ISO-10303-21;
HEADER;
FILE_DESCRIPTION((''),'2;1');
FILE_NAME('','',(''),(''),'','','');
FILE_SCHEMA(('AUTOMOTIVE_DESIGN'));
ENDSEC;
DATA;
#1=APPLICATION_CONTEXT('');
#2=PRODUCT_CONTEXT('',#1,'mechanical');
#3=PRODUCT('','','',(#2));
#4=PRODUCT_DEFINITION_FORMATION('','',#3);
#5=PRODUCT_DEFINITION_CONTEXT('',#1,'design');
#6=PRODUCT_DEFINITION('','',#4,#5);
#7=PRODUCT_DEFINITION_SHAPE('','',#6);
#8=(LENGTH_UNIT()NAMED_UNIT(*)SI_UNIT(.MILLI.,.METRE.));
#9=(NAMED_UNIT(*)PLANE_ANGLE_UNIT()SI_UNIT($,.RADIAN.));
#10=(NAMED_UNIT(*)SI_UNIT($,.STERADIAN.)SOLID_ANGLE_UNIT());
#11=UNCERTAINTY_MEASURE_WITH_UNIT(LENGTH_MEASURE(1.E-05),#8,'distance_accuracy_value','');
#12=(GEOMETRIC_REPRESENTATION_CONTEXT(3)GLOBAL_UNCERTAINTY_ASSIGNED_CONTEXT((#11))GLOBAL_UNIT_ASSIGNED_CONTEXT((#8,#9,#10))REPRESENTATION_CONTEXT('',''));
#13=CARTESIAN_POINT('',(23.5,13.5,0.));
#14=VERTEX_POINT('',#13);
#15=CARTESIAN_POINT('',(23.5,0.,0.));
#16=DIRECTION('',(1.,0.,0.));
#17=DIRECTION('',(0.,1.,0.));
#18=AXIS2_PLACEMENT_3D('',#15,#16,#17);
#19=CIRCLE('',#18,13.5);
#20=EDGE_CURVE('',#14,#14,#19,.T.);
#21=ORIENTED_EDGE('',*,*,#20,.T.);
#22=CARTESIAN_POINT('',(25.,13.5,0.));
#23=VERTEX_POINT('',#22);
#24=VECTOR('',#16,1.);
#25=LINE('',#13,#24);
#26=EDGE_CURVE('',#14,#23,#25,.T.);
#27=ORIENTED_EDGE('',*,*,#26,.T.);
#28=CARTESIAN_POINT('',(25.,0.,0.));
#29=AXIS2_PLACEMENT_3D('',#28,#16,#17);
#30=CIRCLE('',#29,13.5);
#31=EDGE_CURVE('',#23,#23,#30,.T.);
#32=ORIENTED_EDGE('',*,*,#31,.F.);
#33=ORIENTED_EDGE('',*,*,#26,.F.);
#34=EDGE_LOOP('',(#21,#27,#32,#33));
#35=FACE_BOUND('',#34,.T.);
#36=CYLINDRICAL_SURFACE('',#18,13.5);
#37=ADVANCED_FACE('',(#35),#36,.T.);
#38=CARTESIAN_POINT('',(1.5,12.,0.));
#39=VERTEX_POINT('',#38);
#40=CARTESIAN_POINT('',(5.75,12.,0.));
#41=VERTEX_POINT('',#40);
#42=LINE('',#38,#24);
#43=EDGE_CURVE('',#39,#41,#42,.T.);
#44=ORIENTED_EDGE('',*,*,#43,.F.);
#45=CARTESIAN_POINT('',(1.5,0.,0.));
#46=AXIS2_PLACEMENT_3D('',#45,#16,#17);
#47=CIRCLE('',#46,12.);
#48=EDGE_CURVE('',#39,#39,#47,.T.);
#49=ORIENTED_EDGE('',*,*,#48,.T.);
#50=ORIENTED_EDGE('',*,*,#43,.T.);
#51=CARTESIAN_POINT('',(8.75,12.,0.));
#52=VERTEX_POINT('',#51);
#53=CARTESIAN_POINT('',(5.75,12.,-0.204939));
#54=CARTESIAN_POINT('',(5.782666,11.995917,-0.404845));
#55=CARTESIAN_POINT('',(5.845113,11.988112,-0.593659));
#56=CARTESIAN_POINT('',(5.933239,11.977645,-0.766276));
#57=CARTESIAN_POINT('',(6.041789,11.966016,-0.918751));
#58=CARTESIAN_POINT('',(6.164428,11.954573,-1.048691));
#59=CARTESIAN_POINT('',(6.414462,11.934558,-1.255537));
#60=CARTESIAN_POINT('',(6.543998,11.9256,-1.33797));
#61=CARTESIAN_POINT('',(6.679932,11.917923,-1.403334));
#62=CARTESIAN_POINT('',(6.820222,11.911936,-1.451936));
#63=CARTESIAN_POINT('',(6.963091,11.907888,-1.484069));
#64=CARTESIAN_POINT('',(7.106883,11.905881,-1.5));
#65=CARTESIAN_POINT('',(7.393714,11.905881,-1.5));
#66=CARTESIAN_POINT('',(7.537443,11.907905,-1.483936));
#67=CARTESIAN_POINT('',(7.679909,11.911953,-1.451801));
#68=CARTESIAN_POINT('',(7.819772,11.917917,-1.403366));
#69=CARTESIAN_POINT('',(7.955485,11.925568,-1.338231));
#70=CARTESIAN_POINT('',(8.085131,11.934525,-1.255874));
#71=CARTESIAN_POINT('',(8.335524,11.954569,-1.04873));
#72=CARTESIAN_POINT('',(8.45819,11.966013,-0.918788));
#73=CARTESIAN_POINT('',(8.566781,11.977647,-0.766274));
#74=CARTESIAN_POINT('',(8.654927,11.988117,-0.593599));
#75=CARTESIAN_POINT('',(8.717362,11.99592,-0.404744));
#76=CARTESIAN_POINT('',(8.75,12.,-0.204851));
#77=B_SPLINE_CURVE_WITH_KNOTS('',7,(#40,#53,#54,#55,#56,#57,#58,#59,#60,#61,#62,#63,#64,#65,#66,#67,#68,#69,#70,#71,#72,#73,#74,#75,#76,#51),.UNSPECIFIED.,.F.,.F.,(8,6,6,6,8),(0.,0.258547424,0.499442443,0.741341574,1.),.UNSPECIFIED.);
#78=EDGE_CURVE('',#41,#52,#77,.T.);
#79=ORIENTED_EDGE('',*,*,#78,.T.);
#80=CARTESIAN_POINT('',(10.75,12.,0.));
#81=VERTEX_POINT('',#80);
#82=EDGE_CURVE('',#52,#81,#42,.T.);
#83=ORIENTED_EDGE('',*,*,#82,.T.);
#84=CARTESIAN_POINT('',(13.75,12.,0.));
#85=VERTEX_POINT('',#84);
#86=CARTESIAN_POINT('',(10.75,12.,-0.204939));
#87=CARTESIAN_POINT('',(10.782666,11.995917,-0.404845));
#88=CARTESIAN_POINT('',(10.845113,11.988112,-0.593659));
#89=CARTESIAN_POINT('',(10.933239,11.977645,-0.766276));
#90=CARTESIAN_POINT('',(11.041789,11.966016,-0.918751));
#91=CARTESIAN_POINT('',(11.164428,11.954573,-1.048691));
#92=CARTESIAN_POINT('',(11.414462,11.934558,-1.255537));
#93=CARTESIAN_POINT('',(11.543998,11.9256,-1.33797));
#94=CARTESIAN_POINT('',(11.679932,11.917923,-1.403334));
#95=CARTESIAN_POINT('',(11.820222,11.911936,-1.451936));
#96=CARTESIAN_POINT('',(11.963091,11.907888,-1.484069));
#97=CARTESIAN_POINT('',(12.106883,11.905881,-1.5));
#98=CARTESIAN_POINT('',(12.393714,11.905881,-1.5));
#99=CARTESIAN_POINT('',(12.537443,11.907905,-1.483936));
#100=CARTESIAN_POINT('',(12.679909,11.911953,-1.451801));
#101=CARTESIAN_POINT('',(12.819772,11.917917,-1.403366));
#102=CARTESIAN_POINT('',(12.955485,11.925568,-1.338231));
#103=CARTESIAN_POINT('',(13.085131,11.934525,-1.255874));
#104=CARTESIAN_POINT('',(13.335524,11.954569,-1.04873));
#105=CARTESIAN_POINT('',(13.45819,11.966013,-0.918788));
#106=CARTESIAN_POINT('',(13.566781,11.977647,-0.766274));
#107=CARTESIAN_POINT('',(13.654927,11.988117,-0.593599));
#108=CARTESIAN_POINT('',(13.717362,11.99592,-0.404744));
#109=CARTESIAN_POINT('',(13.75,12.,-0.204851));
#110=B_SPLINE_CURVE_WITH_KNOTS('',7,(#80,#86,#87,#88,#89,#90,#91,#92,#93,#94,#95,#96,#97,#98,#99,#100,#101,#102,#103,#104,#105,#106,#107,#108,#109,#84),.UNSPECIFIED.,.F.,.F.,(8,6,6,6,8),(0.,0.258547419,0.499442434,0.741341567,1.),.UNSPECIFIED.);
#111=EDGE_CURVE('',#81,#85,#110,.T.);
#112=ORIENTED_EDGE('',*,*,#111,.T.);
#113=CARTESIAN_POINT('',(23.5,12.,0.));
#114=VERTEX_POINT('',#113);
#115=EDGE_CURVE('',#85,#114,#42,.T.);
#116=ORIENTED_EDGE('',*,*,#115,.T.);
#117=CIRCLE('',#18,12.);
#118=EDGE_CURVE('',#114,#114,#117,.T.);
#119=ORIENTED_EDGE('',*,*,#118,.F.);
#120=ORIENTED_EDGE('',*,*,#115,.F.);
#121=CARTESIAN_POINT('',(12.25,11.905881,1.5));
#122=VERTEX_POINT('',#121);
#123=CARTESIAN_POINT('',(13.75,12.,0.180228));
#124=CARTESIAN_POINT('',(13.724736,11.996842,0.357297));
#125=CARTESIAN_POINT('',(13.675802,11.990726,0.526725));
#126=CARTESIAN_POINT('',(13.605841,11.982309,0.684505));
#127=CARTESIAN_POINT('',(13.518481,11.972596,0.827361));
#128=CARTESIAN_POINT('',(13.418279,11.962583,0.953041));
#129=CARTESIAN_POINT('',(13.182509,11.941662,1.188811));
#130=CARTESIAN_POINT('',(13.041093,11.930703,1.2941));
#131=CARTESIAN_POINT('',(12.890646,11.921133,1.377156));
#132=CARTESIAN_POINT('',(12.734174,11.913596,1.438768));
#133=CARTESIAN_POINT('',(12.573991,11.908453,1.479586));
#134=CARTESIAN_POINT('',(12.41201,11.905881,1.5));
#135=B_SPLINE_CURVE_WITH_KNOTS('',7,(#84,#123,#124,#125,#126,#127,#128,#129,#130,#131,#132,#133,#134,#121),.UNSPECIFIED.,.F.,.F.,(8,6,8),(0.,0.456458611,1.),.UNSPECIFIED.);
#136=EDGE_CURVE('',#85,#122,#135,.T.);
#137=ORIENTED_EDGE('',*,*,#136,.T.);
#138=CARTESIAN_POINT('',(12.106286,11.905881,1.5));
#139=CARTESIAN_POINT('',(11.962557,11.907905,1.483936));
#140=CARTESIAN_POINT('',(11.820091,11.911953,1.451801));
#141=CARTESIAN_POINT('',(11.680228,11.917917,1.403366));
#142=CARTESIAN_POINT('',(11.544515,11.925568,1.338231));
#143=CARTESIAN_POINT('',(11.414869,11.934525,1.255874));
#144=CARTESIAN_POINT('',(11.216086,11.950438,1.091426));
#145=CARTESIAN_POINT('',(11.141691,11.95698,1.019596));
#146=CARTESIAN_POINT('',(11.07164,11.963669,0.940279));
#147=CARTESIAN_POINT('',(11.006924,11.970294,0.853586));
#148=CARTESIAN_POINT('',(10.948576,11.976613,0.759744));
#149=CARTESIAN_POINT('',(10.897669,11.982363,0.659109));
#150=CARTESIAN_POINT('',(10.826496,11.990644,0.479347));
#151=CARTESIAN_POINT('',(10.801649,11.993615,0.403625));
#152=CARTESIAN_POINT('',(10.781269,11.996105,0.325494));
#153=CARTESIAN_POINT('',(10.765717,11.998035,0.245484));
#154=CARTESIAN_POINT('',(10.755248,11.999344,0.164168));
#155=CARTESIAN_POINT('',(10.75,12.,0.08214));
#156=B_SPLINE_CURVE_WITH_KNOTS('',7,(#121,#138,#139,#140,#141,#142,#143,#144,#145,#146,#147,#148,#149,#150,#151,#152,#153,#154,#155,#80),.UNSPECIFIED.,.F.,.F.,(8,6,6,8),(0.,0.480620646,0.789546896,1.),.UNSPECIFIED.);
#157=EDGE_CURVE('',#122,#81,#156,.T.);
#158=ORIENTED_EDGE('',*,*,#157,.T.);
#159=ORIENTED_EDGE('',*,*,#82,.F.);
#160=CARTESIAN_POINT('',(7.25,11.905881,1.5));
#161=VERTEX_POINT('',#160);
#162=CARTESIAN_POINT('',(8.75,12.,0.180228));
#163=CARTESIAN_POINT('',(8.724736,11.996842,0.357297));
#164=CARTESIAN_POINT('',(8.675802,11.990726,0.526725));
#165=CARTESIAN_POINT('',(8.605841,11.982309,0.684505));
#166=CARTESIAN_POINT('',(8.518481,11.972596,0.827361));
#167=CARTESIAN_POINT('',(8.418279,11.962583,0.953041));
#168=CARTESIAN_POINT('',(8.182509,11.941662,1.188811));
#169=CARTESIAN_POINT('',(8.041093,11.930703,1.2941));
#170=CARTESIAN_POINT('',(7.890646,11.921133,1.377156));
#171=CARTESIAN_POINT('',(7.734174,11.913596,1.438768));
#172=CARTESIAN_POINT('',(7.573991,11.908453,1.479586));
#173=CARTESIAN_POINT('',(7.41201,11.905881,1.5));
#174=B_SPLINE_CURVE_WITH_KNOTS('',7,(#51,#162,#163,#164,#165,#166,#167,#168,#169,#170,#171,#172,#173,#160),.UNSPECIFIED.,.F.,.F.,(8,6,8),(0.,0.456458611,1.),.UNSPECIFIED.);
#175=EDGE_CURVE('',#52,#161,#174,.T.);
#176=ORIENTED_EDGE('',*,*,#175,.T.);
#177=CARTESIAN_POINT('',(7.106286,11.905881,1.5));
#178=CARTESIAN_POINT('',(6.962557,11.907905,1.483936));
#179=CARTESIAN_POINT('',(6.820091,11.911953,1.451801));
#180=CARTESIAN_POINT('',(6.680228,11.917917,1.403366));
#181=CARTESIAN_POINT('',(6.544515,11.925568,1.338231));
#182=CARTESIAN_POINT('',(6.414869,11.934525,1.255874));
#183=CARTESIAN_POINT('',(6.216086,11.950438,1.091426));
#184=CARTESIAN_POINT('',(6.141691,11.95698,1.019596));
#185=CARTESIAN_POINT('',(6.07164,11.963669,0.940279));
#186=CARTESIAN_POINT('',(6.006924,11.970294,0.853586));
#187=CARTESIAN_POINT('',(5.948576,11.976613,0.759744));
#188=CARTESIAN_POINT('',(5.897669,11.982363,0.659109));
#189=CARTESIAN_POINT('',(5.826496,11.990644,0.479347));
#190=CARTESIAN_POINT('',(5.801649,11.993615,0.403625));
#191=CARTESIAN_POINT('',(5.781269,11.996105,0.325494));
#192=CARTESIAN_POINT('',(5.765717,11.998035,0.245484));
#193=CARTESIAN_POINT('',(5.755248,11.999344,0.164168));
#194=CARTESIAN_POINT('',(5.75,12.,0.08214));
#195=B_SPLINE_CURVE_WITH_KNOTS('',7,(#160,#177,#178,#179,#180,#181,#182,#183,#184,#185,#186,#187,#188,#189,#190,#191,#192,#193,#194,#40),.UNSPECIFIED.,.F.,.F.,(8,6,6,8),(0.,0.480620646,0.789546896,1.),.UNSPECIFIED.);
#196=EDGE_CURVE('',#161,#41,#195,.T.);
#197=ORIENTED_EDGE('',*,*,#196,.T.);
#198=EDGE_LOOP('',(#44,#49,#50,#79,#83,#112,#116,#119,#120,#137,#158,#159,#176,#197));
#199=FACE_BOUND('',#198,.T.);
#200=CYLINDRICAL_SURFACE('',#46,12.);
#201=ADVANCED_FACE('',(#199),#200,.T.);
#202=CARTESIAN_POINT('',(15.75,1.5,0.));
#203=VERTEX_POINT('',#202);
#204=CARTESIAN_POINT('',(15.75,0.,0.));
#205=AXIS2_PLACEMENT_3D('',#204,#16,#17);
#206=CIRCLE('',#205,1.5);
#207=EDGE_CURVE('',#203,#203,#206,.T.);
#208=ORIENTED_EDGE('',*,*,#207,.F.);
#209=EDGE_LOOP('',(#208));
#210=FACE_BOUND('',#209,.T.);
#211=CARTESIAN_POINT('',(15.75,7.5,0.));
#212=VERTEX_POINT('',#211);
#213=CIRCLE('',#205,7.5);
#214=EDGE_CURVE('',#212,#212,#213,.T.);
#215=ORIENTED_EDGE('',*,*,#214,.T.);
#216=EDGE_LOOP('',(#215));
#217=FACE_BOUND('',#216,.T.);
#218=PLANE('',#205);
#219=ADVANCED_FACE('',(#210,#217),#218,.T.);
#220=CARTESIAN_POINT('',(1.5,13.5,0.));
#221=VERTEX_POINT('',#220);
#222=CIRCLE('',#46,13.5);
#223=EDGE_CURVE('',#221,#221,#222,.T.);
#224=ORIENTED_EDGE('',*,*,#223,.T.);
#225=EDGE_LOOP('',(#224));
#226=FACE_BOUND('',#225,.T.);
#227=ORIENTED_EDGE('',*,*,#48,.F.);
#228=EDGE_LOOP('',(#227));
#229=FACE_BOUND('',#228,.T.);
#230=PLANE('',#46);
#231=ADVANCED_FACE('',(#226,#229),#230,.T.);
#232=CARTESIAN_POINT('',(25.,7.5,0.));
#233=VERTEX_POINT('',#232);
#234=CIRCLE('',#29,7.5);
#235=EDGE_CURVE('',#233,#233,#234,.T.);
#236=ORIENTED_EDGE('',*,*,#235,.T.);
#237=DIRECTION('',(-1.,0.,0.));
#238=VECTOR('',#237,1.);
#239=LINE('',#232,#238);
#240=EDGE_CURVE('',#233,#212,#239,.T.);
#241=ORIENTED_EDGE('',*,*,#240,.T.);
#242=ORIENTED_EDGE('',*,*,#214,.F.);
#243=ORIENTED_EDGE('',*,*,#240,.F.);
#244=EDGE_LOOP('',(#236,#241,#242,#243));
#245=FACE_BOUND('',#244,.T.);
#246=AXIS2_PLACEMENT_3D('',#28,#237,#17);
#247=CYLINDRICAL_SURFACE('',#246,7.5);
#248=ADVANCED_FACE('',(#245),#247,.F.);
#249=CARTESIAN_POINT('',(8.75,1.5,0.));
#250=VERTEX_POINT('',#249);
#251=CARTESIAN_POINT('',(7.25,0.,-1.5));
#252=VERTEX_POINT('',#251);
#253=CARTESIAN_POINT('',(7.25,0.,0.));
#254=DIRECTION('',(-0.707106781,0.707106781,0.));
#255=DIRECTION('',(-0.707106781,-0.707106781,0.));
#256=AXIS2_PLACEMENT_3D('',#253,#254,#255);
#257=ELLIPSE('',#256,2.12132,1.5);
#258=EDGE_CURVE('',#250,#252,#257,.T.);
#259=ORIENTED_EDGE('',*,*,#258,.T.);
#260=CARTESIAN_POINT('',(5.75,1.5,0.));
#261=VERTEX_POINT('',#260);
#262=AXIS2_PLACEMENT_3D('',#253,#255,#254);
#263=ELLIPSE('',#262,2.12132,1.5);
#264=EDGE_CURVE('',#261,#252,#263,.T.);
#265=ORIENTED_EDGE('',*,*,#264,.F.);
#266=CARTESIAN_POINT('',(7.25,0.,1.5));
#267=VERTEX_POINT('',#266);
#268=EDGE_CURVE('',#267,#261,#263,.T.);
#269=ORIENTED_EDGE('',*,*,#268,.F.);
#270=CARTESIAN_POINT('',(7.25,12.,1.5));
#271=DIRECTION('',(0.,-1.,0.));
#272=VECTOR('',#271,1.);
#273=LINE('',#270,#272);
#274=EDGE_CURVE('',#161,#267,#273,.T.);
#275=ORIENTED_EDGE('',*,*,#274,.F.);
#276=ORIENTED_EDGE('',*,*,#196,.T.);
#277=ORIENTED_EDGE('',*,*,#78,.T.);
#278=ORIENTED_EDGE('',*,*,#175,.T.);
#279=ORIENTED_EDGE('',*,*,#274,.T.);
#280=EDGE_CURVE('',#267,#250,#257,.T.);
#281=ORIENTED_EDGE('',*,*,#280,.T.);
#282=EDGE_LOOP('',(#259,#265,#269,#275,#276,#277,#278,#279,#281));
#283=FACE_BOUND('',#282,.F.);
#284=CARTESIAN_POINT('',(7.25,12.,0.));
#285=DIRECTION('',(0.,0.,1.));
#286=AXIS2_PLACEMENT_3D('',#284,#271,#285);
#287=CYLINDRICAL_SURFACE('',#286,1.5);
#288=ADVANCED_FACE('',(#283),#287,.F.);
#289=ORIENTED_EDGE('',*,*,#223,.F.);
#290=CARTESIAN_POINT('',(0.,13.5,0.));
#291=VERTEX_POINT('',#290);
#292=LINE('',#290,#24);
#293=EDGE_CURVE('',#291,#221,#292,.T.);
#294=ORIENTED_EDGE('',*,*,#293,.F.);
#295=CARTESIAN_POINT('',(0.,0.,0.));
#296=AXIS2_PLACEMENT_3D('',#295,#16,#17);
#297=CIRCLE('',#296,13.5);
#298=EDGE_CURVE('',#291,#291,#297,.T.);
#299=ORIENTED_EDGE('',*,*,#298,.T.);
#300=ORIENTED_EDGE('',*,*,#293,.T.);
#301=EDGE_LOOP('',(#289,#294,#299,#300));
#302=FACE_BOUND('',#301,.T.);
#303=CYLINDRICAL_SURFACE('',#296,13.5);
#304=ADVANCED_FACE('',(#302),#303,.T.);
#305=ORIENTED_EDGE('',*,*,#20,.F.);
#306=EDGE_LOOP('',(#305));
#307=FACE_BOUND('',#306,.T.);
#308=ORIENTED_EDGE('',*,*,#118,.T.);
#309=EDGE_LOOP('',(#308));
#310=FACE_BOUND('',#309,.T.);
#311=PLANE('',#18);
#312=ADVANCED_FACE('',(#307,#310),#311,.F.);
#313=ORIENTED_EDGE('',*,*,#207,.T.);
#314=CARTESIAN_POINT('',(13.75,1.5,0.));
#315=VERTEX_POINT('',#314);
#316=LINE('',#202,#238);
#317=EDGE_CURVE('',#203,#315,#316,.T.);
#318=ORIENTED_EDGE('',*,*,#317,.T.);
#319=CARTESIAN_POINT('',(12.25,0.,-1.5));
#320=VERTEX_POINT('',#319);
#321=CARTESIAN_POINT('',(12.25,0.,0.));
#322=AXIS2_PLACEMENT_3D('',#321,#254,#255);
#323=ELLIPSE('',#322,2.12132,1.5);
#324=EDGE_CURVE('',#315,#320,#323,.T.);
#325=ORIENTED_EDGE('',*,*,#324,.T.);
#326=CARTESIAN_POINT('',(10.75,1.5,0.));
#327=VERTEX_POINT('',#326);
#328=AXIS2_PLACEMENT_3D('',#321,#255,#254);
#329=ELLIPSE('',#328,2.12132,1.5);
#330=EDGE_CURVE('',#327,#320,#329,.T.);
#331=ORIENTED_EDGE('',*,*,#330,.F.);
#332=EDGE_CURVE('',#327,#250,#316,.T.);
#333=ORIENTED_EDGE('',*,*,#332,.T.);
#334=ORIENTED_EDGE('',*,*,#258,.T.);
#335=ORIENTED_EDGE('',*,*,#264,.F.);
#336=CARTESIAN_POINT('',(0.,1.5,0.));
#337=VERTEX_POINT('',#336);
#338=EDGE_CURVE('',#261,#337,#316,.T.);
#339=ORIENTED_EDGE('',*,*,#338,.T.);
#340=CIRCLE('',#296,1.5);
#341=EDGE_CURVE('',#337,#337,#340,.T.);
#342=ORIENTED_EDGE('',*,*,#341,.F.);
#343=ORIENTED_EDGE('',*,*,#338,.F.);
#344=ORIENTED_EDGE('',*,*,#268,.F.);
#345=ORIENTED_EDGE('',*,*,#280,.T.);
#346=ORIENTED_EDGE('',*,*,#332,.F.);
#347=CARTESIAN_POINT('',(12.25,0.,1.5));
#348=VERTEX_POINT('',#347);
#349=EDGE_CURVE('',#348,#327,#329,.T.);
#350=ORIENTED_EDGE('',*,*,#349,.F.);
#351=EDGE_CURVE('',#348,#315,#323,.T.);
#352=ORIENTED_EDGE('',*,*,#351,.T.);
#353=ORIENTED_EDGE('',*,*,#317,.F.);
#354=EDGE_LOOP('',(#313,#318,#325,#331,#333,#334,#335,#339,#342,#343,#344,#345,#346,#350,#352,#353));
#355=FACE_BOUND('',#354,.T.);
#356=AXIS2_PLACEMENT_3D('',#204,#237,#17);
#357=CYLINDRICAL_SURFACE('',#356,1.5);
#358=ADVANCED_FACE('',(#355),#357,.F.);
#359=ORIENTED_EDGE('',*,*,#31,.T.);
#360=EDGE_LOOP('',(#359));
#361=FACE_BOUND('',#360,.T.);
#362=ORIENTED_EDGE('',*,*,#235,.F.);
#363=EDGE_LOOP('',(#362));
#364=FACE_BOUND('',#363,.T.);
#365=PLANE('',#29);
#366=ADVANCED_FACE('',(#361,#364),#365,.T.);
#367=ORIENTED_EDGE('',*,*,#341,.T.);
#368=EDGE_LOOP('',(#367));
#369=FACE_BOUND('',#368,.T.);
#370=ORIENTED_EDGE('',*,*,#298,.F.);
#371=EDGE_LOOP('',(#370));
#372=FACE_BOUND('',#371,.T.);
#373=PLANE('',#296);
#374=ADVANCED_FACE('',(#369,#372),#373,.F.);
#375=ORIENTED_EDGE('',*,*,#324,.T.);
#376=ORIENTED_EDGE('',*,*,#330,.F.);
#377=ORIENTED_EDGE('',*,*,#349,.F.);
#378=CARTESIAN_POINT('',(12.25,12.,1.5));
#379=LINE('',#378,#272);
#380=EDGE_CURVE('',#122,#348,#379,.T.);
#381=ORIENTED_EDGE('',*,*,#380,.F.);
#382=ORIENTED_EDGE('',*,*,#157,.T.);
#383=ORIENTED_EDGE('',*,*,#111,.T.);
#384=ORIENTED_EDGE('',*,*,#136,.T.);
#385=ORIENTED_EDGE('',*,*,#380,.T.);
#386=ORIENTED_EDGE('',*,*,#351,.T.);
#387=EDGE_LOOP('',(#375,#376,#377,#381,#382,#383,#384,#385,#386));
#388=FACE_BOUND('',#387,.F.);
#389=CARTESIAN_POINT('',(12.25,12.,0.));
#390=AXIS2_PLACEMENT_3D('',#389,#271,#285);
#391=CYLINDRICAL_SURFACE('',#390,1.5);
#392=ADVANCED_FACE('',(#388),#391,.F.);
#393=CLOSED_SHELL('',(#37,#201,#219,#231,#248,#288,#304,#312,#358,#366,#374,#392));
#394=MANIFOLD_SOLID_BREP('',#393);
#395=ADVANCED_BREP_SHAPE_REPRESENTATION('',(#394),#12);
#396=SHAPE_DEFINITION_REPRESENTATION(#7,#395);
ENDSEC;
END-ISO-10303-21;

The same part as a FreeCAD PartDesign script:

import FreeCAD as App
import Part
import Sketcher
from FreeCAD import Vector


def add_polygon(sketch, points):
    """Adds a closed chain of lines whose ends are joined by coincident constraints."""
    first, n = sketch.GeometryCount, len(points)
    for a, b in zip(points, points[1:] + points[:1]):
        sketch.addGeometry(Part.LineSegment(App.Vector(*a, 0), App.Vector(*b, 0)), False)
    for i in range(n):
        sketch.addConstraint(Sketcher.Constraint("Coincident", first + i, 2, first + (i + 1) % n, 1))

doc = App.newDocument("Part")
params = doc.addObject("Spreadsheet::Sheet", "Params")
for row, (alias, value) in enumerate([
    ("sketch1_width", "1.5 mm"),
    ("sketch1_width2", "9.25 mm"),
    ("sketch1_height", "12 mm"),
    ("revolution_angle", "360 deg"),
    ("sketch2_diameter", "3 mm"),
    ("hole_diameter", "3 mm"),
    ("hole_depth", "12 mm"),
], start=1):
    params.set(f"A{row}", alias)
    params.set(f"B{row}", "=" + value)
    params.setAlias(f"B{row}", alias)

body = doc.addObject("PartDesign::Body", "Body")

# Sketch on XY plane
sketch1 = body.newObject("Sketcher::SketchObject", "Sketch")
sketch1.AttachmentSupport = (doc.getObject("XY_Plane"), [""])
sketch1.MapMode = "FlatFace"
add_polygon(sketch1, [(0, 13.5), (0, 1.5), (15.8, 1.5), (15.8, 7.5), (25, 7.5), (25, 13.5), (23.5, 13.5), (23.5, 12), (1.5, 12), (1.5, 13.5)])  # lines 0-9
sketch1.addConstraint([
    Sketcher.Constraint("Vertical", 0),
    Sketcher.Constraint("Horizontal", 1),
    Sketcher.Constraint("Vertical", 2),
    Sketcher.Constraint("Horizontal", 3),
    Sketcher.Constraint("Vertical", 4),
    Sketcher.Constraint("Horizontal", 5),
    Sketcher.Constraint("Vertical", 6),
    Sketcher.Constraint("Horizontal", 7),
    Sketcher.Constraint("Vertical", 8),
    Sketcher.Constraint("Horizontal", 9),
    Sketcher.Constraint("PointOnObject", 0, 2, -2),
    Sketcher.Constraint("Horizontal", 5, 2, 8, 2),
    Sketcher.Constraint("Equal", 5, 9),
    Sketcher.Constraint("Equal", 2, 4),
    Sketcher.Constraint("Equal", 9, 6),
    Sketcher.Constraint("DistanceX", 5, 2, 5, 1, 1.5),
    Sketcher.Constraint("DistanceX", -1, 1, 3, 2, 25.0),
    Sketcher.Constraint("DistanceX", 3, 1, 3, 2, 9.25),
    Sketcher.Constraint("DistanceY", -1, 1, 0, 2, 1.5),
    Sketcher.Constraint("DistanceY", 0, 2, 0, 1, 12.0),
])
sketch1.setExpression("Constraints[25]", "Params.sketch1_width")
sketch1.setExpression("Constraints[27]", "Params.sketch1_width2")
sketch1.setExpression("Constraints[29]", "Params.sketch1_height")
revolution = body.newObject("PartDesign::Revolution", "Revolution")
revolution.Profile = sketch1
revolution.ReferenceAxis = (sketch1, ["H_Axis"])
revolution.setExpression("Angle", "Params.revolution_angle")

# Sketch on XZ plane
sketch2 = body.newObject("Sketcher::SketchObject", "Sketch001")
sketch2.AttachmentSupport = (doc.getObject("XZ_Plane"), [""])
sketch2.MapMode = "FlatFace"
sketch2.AttachmentOffset = App.Placement(Vector(0, 0, -12), App.Rotation())
sketch2.addGeometry([
    Part.Circle(Vector(7.2, 0, 0), Vector(0, 0, 1), 1.5),
    Part.Circle(Vector(12.2, 0, 0), Vector(0, 0, 1), 1.5),
], False)
sketch2.addConstraint([
    Sketcher.Constraint("Equal", 0, 1),
    Sketcher.Constraint("PointOnObject", 0, 3, -1),
    Sketcher.Constraint("PointOnObject", 1, 3, -1),
    Sketcher.Constraint("Diameter", 0, 3.0),
    Sketcher.Constraint("DistanceX", 0, 3, 1, 3, 5.0),
    Sketcher.Constraint("DistanceX", -1, 1, 0, 3, 7.25),
])
sketch2.setExpression("Constraints[3]", "Params.sketch2_diameter")
doc.recompute()
hole = body.newObject("PartDesign::Hole", "Hole")
hole.Profile = sketch2
hole.ThreadType = "None"
hole.setExpression("Diameter", "Params.hole_diameter")
hole.DepthType = "Dimension"
hole.setExpression("Depth", "Params.hole_depth")
hole.DrillPoint = "Flat"
hole.Reversed = True

doc.recompute()
